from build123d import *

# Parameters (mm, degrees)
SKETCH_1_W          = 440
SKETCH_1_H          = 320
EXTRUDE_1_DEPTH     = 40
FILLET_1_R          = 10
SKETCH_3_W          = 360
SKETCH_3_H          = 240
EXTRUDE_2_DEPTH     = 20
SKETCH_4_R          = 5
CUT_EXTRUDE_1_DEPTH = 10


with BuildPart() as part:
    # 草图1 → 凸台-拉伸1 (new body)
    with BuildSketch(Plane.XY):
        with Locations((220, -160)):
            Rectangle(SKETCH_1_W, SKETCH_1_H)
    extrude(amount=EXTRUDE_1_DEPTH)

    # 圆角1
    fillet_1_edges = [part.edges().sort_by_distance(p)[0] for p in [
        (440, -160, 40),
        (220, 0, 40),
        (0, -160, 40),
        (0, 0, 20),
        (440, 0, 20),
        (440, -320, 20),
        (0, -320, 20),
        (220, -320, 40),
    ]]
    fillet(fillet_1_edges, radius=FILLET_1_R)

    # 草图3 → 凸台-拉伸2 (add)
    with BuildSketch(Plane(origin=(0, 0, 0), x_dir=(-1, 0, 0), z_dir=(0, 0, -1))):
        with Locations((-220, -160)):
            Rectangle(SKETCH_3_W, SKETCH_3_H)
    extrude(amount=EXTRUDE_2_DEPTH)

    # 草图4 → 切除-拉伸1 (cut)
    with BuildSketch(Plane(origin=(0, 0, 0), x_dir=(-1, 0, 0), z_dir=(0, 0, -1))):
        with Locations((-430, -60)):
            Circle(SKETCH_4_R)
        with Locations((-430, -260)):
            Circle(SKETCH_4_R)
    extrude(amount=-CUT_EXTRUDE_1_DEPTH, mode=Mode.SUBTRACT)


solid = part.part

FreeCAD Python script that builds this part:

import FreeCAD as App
import Part
import Sketcher
Q = App.Units.Quantity


def edges_at(feature, points):
    """Names of the edges that pass closest to the given points."""
    edges = feature.Shape.Edges
    near = lambda p: min(range(len(edges)), key=lambda i: edges[i].distToShape(Part.Vertex(*p))[0])
    return sorted({f"Edge{near(p) + 1}" for p in points})

doc = App.newDocument("Part")
body = doc.addObject("PartDesign::Body", "Body")

# Sketch on XY plane
sketch1 = body.newObject("Sketcher::SketchObject", "Sketch")
sketch1.AttachmentSupport = (doc.getObject("XY_Plane"), [""])
sketch1.MapMode = "FlatFace"
sketch1.addGeometry([
    Part.LineSegment(App.Vector(0, 0, 0), App.Vector(0, -320, 0)),
    Part.LineSegment(App.Vector(0, -320, 0), App.Vector(440, -320, 0)),
    Part.LineSegment(App.Vector(440, -320, 0), App.Vector(440, 0, 0)),
    Part.LineSegment(App.Vector(440, 0, 0), App.Vector(0, 0, 0)),
], False)
sketch1.addConstraint([
    Sketcher.Constraint("Coincident", 0, 2, 1, 1),
    Sketcher.Constraint("Coincident", 1, 2, 2, 1),
    Sketcher.Constraint("Coincident", 2, 2, 3, 1),
    Sketcher.Constraint("Coincident", 3, 2, 0, 1),
    Sketcher.Constraint("Vertical", 0),
    Sketcher.Constraint("Horizontal", 1),
    Sketcher.Constraint("Vertical", 2),
    Sketcher.Constraint("Horizontal", 3),
    Sketcher.Constraint("Coincident", 3, 2, -1, 1),
    Sketcher.Constraint("DistanceX", 1, 1, 1, 2, Q("440 mm")),
    Sketcher.Constraint("DistanceY", 0, 2, 0, 1, Q("320 mm")),
])
pad1 = body.newObject("PartDesign::Pad", "Pad")
pad1.Profile = sketch1
pad1.Length = 40
doc.recompute()

fillet = body.newObject("PartDesign::Fillet", "Fillet")
fillet.Base = (pad1, edges_at(pad1, [
    (440, -160, 40),
    (220, 0, 40),
    (0, -160, 40),
    (0, 0, 20),
    (440, 0, 20),
    (440, -320, 20),
    (0, -320, 20),
    (220, -320, 40),
]))
fillet.Radius = 10

# Sketch on XY plane
sketch2 = body.newObject("Sketcher::SketchObject", "Sketch001")
sketch2.AttachmentSupport = (doc.getObject("XY_Plane"), [""])
sketch2.MapMode = "FlatFace"
sketch2.addGeometry([
    Part.LineSegment(App.Vector(400, -40, 0), App.Vector(400, -280, 0)),
    Part.LineSegment(App.Vector(400, -280, 0), App.Vector(40, -280, 0)),
    Part.LineSegment(App.Vector(40, -280, 0), App.Vector(40, -40, 0)),
    Part.LineSegment(App.Vector(40, -40, 0), App.Vector(400, -40, 0)),
], False)
sketch2.addConstraint([
    Sketcher.Constraint("Coincident", 0, 2, 1, 1),
    Sketcher.Constraint("Coincident", 1, 2, 2, 1),
    Sketcher.Constraint("Coincident", 2, 2, 3, 1),
    Sketcher.Constraint("Coincident", 3, 2, 0, 1),
    Sketcher.Constraint("Vertical", 0),
    Sketcher.Constraint("Horizontal", 1),
    Sketcher.Constraint("Vertical", 2),
    Sketcher.Constraint("Horizontal", 3),
    Sketcher.Constraint("DistanceX", 1, 2, 1, 1, Q("360 mm")),
    Sketcher.Constraint("DistanceY", 0, 2, 0, 1, Q("240 mm")),
    Sketcher.Constraint("DistanceX", -1, 1, 0, 2, Q("400 mm")),
    Sketcher.Constraint("DistanceY", 0, 2, -1, 1, Q("280 mm")),
])
pad2 = body.newObject("PartDesign::Pad", "Pad001")
pad2.Profile = sketch2
pad2.Length = 20
pad2.Reversed = True

# Sketch on XY plane
sketch3 = body.newObject("Sketcher::SketchObject", "Sketch002")
sketch3.AttachmentSupport = (doc.getObject("XY_Plane"), [""])
sketch3.MapMode = "FlatFace"
sketch3.addGeometry([
    Part.Circle(App.Vector(430, -60, 0), App.Vector(0, 0, 1), 5),
    Part.Circle(App.Vector(430, -260, 0), App.Vector(0, 0, 1), 5),
], False)
sketch3.addConstraint([
    Sketcher.Constraint("Equal", 0, 1),
    Sketcher.Constraint("Vertical", 0, 3, 1, 3),
    Sketcher.Constraint("Diameter", 0, Q("10 mm")),
    Sketcher.Constraint("DistanceX", -1, 1, 0, 3, Q("430 mm")),
    Sketcher.Constraint("DistanceY", 0, 3, -1, 1, Q("60 mm")),
    Sketcher.Constraint("DistanceY", 1, 3, -1, 1, Q("260 mm")),
])
pocket1 = body.newObject("PartDesign::Pocket", "Pocket")
pocket1.Profile = sketch3
pocket1.Length = 10
pocket1.Reversed = True

doc.recompute()
